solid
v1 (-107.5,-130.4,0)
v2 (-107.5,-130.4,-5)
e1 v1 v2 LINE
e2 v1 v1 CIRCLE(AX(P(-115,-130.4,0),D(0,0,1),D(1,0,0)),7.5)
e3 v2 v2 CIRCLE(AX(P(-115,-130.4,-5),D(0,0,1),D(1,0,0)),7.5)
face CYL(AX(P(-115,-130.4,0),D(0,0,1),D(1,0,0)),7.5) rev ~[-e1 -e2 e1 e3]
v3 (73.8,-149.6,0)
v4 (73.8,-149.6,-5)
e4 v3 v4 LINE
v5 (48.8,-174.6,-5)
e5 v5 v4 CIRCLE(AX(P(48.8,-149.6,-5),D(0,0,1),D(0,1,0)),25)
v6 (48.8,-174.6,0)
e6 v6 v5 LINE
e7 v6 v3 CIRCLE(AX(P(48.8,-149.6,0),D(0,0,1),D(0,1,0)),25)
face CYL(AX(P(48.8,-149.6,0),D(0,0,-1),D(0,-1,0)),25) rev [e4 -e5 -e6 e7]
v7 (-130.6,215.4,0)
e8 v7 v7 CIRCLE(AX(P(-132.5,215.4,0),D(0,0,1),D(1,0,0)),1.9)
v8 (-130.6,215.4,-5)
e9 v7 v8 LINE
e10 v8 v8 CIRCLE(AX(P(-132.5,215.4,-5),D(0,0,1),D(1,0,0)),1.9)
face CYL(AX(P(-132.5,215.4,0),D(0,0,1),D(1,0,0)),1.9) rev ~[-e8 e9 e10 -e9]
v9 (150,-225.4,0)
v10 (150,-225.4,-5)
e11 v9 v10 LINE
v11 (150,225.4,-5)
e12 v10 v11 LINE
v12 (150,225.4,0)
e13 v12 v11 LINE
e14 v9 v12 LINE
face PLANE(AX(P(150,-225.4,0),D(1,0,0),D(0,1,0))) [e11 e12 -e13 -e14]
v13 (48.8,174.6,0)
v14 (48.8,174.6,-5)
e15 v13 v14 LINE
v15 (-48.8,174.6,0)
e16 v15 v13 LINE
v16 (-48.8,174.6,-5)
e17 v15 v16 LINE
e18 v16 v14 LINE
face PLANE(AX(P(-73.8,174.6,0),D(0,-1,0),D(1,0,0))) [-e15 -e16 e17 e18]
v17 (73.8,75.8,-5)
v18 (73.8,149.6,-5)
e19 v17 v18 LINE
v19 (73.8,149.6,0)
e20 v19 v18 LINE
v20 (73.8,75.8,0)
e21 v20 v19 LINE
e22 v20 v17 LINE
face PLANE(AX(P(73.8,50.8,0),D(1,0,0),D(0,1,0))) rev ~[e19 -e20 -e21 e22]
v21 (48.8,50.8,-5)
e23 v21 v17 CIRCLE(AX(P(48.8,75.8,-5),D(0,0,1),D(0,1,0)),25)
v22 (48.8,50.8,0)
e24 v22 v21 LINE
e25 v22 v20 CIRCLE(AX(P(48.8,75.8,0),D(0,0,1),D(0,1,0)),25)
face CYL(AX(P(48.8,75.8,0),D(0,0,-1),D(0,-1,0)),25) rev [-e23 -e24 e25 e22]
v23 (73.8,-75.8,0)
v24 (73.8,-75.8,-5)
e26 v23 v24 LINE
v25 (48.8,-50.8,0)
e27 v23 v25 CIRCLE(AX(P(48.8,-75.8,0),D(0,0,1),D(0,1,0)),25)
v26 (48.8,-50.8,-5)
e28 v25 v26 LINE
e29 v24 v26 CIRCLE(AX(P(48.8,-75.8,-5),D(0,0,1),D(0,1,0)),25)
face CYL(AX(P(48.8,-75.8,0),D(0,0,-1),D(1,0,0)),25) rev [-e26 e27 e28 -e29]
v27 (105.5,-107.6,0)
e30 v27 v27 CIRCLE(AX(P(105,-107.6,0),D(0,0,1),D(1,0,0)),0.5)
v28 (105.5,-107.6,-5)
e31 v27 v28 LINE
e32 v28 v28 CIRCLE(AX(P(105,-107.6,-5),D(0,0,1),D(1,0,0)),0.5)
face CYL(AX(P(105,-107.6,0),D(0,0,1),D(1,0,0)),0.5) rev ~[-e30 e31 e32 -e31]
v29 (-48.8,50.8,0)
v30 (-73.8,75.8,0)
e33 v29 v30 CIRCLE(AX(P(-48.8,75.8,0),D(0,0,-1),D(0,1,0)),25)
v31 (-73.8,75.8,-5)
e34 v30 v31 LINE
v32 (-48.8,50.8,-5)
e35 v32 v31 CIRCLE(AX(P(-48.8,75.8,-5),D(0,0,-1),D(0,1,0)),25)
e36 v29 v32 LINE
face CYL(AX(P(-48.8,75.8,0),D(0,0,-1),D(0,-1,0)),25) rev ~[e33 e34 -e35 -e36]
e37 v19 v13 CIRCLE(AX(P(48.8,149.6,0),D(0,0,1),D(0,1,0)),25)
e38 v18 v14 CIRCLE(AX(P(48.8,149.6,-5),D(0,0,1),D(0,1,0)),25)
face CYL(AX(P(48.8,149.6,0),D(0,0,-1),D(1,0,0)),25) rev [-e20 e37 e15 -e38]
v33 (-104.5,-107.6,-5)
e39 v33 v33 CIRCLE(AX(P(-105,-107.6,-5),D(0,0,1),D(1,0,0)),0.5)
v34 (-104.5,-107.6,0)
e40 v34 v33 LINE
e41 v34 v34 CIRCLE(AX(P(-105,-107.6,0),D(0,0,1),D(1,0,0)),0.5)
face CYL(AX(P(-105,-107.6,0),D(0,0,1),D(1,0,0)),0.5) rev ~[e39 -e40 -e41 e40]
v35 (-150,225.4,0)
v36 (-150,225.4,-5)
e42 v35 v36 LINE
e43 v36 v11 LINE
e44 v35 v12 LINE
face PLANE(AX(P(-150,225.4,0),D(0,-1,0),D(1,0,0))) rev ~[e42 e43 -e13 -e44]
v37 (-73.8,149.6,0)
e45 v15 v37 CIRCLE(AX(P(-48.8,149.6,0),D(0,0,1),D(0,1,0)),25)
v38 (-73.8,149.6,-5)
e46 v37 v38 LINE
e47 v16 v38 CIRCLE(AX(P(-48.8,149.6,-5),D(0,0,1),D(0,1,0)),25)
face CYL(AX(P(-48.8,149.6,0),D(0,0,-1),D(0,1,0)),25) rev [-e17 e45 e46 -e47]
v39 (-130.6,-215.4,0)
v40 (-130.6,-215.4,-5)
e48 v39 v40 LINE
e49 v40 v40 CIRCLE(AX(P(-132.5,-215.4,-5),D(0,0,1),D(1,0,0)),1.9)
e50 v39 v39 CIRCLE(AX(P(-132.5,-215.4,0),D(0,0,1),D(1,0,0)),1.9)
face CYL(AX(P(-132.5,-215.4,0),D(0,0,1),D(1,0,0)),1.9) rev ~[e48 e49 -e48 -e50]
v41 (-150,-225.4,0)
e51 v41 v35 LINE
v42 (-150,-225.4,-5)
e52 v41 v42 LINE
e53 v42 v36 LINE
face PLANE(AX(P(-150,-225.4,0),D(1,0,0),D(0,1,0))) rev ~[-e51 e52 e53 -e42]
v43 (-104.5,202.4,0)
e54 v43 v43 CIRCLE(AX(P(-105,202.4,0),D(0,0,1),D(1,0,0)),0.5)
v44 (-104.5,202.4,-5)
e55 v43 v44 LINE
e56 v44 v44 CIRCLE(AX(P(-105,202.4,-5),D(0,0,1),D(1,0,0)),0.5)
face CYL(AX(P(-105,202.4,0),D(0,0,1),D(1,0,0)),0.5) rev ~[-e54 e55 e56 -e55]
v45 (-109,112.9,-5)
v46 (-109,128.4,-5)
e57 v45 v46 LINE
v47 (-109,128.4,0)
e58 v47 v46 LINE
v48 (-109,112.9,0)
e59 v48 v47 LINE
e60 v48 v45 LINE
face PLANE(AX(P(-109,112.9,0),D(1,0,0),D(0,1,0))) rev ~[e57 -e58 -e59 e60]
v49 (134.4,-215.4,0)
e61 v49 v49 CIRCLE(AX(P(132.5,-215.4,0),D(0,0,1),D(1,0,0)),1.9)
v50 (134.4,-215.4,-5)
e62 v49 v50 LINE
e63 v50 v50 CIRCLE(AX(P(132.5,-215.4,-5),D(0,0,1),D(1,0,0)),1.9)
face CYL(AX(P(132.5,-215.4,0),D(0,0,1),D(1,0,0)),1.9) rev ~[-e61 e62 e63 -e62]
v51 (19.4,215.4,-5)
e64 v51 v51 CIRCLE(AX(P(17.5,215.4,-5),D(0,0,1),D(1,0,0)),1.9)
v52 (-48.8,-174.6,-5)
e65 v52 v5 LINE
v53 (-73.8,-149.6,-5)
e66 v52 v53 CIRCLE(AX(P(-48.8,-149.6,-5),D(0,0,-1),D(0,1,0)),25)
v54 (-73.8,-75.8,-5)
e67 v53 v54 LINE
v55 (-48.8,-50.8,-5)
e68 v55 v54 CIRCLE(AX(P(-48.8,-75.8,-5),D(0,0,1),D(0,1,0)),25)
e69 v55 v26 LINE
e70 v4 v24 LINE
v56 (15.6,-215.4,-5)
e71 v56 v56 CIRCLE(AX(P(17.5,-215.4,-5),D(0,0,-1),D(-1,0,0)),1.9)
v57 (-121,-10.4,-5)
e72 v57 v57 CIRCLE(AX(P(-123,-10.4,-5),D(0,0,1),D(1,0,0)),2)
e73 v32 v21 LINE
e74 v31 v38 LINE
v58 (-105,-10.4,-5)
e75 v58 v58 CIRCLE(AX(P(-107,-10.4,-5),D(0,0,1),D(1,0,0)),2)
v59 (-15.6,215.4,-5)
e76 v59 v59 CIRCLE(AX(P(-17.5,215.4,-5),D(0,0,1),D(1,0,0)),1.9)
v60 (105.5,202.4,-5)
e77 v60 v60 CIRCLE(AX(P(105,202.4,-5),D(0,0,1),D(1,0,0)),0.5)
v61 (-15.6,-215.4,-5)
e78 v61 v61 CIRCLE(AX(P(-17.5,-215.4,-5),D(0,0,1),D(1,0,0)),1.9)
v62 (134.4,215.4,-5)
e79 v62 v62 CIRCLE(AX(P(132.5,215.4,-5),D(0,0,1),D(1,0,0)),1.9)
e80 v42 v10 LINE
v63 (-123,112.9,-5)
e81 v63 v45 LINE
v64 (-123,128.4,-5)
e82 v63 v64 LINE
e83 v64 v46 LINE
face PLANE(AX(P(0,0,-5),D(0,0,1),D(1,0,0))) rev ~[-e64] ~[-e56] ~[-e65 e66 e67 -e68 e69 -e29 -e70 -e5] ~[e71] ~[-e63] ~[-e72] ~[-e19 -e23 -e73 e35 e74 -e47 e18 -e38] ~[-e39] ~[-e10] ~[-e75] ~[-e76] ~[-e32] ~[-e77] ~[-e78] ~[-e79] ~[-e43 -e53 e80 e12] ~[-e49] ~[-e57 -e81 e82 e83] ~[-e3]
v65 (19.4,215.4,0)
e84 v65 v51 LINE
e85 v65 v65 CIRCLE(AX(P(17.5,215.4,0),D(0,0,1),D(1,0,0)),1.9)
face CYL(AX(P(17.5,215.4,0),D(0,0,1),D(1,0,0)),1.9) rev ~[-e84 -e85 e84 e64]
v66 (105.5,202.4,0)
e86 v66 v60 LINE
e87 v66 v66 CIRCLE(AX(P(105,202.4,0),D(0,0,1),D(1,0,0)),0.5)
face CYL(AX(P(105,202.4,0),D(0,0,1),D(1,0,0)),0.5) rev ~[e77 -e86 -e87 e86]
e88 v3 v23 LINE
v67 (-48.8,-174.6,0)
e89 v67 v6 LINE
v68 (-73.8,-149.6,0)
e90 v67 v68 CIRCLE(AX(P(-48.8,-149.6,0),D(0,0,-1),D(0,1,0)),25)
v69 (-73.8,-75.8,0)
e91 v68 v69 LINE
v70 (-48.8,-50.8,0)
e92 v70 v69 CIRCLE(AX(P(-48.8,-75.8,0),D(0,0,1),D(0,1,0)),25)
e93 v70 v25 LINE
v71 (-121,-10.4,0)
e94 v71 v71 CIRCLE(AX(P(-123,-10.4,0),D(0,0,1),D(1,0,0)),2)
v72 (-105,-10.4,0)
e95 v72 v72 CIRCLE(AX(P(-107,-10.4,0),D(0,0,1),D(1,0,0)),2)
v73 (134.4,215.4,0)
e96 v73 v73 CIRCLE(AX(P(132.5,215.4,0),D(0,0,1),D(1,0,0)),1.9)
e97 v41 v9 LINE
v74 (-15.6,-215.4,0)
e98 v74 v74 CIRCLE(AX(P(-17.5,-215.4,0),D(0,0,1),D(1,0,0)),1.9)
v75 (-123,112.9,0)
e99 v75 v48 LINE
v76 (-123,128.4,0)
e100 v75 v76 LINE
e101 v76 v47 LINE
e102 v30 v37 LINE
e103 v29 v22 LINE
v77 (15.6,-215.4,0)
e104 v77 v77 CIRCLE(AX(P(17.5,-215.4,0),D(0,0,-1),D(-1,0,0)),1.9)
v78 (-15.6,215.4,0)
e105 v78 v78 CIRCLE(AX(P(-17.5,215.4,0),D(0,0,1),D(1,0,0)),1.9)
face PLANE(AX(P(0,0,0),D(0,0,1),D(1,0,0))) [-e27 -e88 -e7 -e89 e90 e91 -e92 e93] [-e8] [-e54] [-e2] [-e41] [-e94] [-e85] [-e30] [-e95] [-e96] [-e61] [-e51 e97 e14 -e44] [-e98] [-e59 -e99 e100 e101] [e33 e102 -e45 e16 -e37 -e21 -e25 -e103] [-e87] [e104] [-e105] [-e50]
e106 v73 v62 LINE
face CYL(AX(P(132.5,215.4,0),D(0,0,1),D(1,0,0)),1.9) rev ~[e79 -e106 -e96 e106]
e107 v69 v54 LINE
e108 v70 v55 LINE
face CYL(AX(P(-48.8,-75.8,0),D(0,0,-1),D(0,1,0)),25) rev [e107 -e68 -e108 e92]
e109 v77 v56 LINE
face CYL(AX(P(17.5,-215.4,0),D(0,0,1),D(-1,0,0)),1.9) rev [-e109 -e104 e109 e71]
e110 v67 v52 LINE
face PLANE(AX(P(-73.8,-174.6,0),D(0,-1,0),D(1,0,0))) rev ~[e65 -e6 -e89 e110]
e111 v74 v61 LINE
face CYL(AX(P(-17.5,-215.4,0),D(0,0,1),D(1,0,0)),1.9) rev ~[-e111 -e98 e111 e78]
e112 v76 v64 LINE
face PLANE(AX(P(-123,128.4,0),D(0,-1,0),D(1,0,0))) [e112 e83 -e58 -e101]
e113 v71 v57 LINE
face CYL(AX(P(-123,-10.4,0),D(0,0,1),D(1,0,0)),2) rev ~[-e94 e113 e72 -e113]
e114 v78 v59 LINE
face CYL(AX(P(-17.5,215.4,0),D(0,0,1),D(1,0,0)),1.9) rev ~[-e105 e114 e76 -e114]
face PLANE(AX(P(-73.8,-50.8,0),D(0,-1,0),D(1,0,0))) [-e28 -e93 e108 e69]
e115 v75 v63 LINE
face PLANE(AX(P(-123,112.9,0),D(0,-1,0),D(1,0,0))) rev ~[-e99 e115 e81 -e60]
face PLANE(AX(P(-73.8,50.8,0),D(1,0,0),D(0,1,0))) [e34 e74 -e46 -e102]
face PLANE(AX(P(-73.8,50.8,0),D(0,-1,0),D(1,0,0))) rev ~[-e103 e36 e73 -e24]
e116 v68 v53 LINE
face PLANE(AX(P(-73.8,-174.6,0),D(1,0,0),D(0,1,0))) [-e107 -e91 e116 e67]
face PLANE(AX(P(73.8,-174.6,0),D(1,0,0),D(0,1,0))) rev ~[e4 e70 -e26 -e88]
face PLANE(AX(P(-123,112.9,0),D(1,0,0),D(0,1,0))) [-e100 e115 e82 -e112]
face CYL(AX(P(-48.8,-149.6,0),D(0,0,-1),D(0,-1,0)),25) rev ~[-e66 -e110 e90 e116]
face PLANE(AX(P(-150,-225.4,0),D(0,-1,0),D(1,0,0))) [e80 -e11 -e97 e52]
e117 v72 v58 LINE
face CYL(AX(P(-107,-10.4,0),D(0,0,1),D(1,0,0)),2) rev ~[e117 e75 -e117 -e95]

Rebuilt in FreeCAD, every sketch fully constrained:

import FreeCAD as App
import Part
import Sketcher
from FreeCAD import Vector
Q = App.Units.Quantity


def edges_at(feature, points):
    """Names of the edges that pass closest to the given points."""
    edges = feature.Shape.Edges
    near = lambda p: min(range(len(edges)), key=lambda i: edges[i].distToShape(Part.Vertex(*p))[0])
    return sorted({f"Edge{near(p) + 1}" for p in points})

doc = App.newDocument("Part")
body = doc.addObject("PartDesign::Body", "Body")

sketch1 = body.newObject("Sketcher::SketchObject", "Sketch")
sketch1.AttachmentSupport = (doc.getObject("XY_Plane"), [""])
sketch1.MapMode = "FlatFace"
sketch1.addGeometry(Part.LineSegment(Vector(-150, 225.4, 0), Vector(-150, -225.4, 0)), False)
sketch1.addGeometry(Part.LineSegment(Vector(-150, -225.4, 0), Vector(150, -225.4, 0)), False)
sketch1.addGeometry(Part.LineSegment(Vector(150, -225.4, 0), Vector(150, 225.4, 0)), False)
sketch1.addGeometry(Part.LineSegment(Vector(150, 225.4, 0), Vector(-150, 225.4, 0)), False)
sketch1.addGeometry(Part.Circle(Vector(-132.5, -215.4, 0), Vector(0, 0, 1), 1.9), False)
sketch1.addGeometry(Part.Circle(Vector(-17.5, -215.4, 0), Vector(0, 0, 1), 1.9), False)
sketch1.addGeometry(Part.Circle(Vector(17.5, -215.4, 0), Vector(0, 0, 1), 1.9), False)
sketch1.addGeometry(Part.Circle(Vector(132.5, -215.4, 0), Vector(0, 0, 1), 1.9), False)
sketch1.addGeometry(Part.Circle(Vector(-132.5, 215.4, 0), Vector(0, 0, 1), 1.9), False)
sketch1.addGeometry(Part.Circle(Vector(-17.5, 215.4, 0), Vector(0, 0, 1), 1.9), False)
sketch1.addGeometry(Part.Circle(Vector(17.5, 215.4, 0), Vector(0, 0, 1), 1.9), False)
sketch1.addGeometry(Part.Circle(Vector(132.5, 215.4, 0), Vector(0, 0, 1), 1.9), False)
sketch1.addConstraint(Sketcher.Constraint("Coincident", 0, 2, 1, 1))
sketch1.addConstraint(Sketcher.Constraint("Coincident", 1, 2, 2, 1))
sketch1.addConstraint(Sketcher.Constraint("Coincident", 2, 2, 3, 1))
sketch1.addConstraint(Sketcher.Constraint("Coincident", 3, 2, 0, 1))
sketch1.addConstraint(Sketcher.Constraint("Vertical", 0))
sketch1.addConstraint(Sketcher.Constraint("Horizontal", 1))
sketch1.addConstraint(Sketcher.Constraint("Vertical", 2))
sketch1.addConstraint(Sketcher.Constraint("Horizontal", 3))
sketch1.addConstraint(Sketcher.Constraint("Equal", 4, 5))
sketch1.addConstraint(Sketcher.Constraint("Equal", 5, 6))
sketch1.addConstraint(Sketcher.Constraint("Equal", 6, 7))
sketch1.addConstraint(Sketcher.Constraint("Equal", 7, 8))
sketch1.addConstraint(Sketcher.Constraint("Equal", 8, 9))
sketch1.addConstraint(Sketcher.Constraint("Equal", 9, 10))
sketch1.addConstraint(Sketcher.Constraint("Equal", 10, 11))
sketch1.addConstraint(Sketcher.Constraint("Symmetric", 7, 3, 8, 3, -1, 1))
sketch1.addConstraint(Sketcher.Constraint("Symmetric", 6, 3, 9, 3, -1, 1))
sketch1.addConstraint(Sketcher.Constraint("Symmetric", 5, 3, 10, 3, -1, 1))
sketch1.addConstraint(Sketcher.Constraint("Symmetric", 4, 3, 11, 3, -1, 1))
sketch1.addConstraint(Sketcher.Constraint("Symmetric", 0, 2, 2, 2, -1, 1))
sketch1.addConstraint(Sketcher.Constraint("Symmetric", 5, 3, 6, 3, -2))
sketch1.addConstraint(Sketcher.Constraint("Symmetric", 4, 3, 7, 3, -2))
sketch1.addConstraint(Sketcher.Constraint("Horizontal", 4, 3, 5, 3))
sketch1.addConstraint(Sketcher.Constraint("Diameter", 4, Q("3.8 mm")))
sketch1.addConstraint(Sketcher.Constraint("DistanceX", 1, 1, 1, 2, Q("300 mm")))
sketch1.addConstraint(Sketcher.Constraint("DistanceY", 0, 2, 0, 1, Q("450.8 mm")))
sketch1.addConstraint(Sketcher.Constraint("DistanceX", 4, 3, 5, 3, Q("115 mm")))
sketch1.addConstraint(Sketcher.Constraint("DistanceX", 5, 3, 6, 3, Q("35 mm")))
sketch1.addConstraint(Sketcher.Constraint("DistanceY", 0, 2, 4, 3, Q("10 mm")))
pad1 = body.newObject("PartDesign::Pad", "Pad")
pad1.Profile = sketch1
pad1.Length = 5
pad1.Reversed = True

sketch2 = body.newObject("Sketcher::SketchObject", "Sketch001")
sketch2.AttachmentSupport = (doc.getObject("XY_Plane"), [""])
sketch2.MapMode = "FlatFace"
sketch2.addGeometry(Part.Circle(Vector(-105, 202.4, 0), Vector(0, 0, 1), 0.5), False)
sketch2.addGeometry(Part.Circle(Vector(105, 202.4, 0), Vector(0, 0, 1), 0.5), False)
sketch2.addGeometry(Part.Circle(Vector(105, -107.6, 0), Vector(0, 0, 1), 0.5), False)
sketch2.addGeometry(Part.Circle(Vector(-105, -107.6, 0), Vector(0, 0, 1), 0.5), False)
sketch2.addConstraint(Sketcher.Constraint("Equal", 0, 1))
sketch2.addConstraint(Sketcher.Constraint("Equal", 1, 2))
sketch2.addConstraint(Sketcher.Constraint("Equal", 2, 3))
sketch2.addConstraint(Sketcher.Constraint("Symmetric", 0, 3, 1, 3, -2))
sketch2.addConstraint(Sketcher.Constraint("Symmetric", 2, 3, 3, 3, -2))
sketch2.addConstraint(Sketcher.Constraint("Vertical", 1, 3, 2, 3))
sketch2.addConstraint(Sketcher.Constraint("Diameter", 0, Q("1 mm")))
sketch2.addConstraint(Sketcher.Constraint("DistanceX", 0, 3, -1, 1, Q("105 mm")))
sketch2.addConstraint(Sketcher.Constraint("DistanceY", 2, 3, 1, 3, Q("310 mm")))
sketch2.addConstraint(Sketcher.Constraint("DistanceY", -1, 1, 0, 3, Q("202.4 mm")))
pocket1 = body.newObject("PartDesign::Pocket", "Pocket")
pocket1.Profile = sketch2
pocket1.Length = 25

sketch3 = body.newObject("Sketcher::SketchObject", "Sketch002")
sketch3.AttachmentSupport = (doc.getObject("XY_Plane"), [""])
sketch3.MapMode = "FlatFace"
sketch3.addGeometry(Part.LineSegment(Vector(-74, 175, 0), Vector(-74, 51, 0)), False)
sketch3.addGeometry(Part.LineSegment(Vector(-74, 51, 0), Vector(74, 51, 0)), False)
sketch3.addGeometry(Part.LineSegment(Vector(74, 51, 0), Vector(74, 175, 0)), False)
sketch3.addGeometry(Part.LineSegment(Vector(74, 175, 0), Vector(-74, 175, 0)), False)
sketch3.addGeometry(Part.LineSegment(Vector(-74, -51, 0), Vector(-74, -175, 0)), False)
sketch3.addGeometry(Part.LineSegment(Vector(-74, -175, 0), Vector(74, -175, 0)), False)
sketch3.addGeometry(Part.LineSegment(Vector(74, -175, 0), Vector(74, -51, 0)), False)
sketch3.addGeometry(Part.LineSegment(Vector(74, -51, 0), Vector(-74, -51, 0)), False)
sketch3.addConstraint(Sketcher.Constraint("Coincident", 0, 2, 1, 1))
sketch3.addConstraint(Sketcher.Constraint("Coincident", 1, 2, 2, 1))
sketch3.addConstraint(Sketcher.Constraint("Coincident", 2, 2, 3, 1))
sketch3.addConstraint(Sketcher.Constraint("Coincident", 3, 2, 0, 1))
sketch3.addConstraint(Sketcher.Constraint("Coincident", 4, 2, 5, 1))
sketch3.addConstraint(Sketcher.Constraint("Coincident", 5, 2, 6, 1))
sketch3.addConstraint(Sketcher.Constraint("Coincident", 6, 2, 7, 1))
sketch3.addConstraint(Sketcher.Constraint("Coincident", 7, 2, 4, 1))
sketch3.addConstraint(Sketcher.Constraint("Vertical", 0))
sketch3.addConstraint(Sketcher.Constraint("Horizontal", 1))
sketch3.addConstraint(Sketcher.Constraint("Vertical", 2))
sketch3.addConstraint(Sketcher.Constraint("Horizontal", 3))
sketch3.addConstraint(Sketcher.Constraint("Vertical", 4))
sketch3.addConstraint(Sketcher.Constraint("Horizontal", 5))
sketch3.addConstraint(Sketcher.Constraint("Vertical", 6))
sketch3.addConstraint(Sketcher.Constraint("Horizontal", 7))
sketch3.addConstraint(Sketcher.Constraint("Symmetric", 2, 2, 4, 2, -1, 1))
sketch3.addConstraint(Sketcher.Constraint("Symmetric", 0, 2, 6, 2, -1, 1))
sketch3.addConstraint(Sketcher.Constraint("Vertical", 3, 2, 4, 2))
sketch3.addConstraint(Sketcher.Constraint("DistanceX", 1, 1, 1, 2, Q("147.6 mm")))
sketch3.addConstraint(Sketcher.Constraint("DistanceY", 0, 2, 0, 1, Q("123.8 mm")))
sketch3.addConstraint(Sketcher.Constraint("DistanceY", -1, 1, 0, 2, Q("50.8 mm")))
pocket2 = body.newObject("PartDesign::Pocket", "Pocket001")
pocket2.Profile = sketch3
pocket2.Length = 25
doc.recompute()

fillet = body.newObject("PartDesign::Fillet", "Fillet")
fillet.Base = (pocket2, edges_at(pocket2, [
    (-73.8, 174.6, -2.5),
    (73.8, 174.6, -2.5),
    (-73.8, 50.8, -2.5),
    (73.8, 50.8, -2.5),
    (-73.8, -50.8, -2.5),
    (73.8, -50.8, -2.5),
    (73.8, -174.6, -2.5),
    (-73.8, -174.6, -2.5),
]))
fillet.Radius = 25

sketch4 = body.newObject("Sketcher::SketchObject", "Sketch003")
sketch4.AttachmentSupport = (doc.getObject("XY_Plane"), [""])
sketch4.MapMode = "FlatFace"
sketch4.addGeometry(Part.LineSegment(Vector(-123, 128, 0), Vector(-123, 113, 0)), False)
sketch4.addGeometry(Part.LineSegment(Vector(-123, 113, 0), Vector(-109, 113, 0)), False)
sketch4.addGeometry(Part.LineSegment(Vector(-109, 113, 0), Vector(-109, 128, 0)), False)
sketch4.addGeometry(Part.LineSegment(Vector(-109, 128, 0), Vector(-123, 128, 0)), False)
sketch4.addConstraint(Sketcher.Constraint("Coincident", 0, 2, 1, 1))
sketch4.addConstraint(Sketcher.Constraint("Coincident", 1, 2, 2, 1))
sketch4.addConstraint(Sketcher.Constraint("Coincident", 2, 2, 3, 1))
sketch4.addConstraint(Sketcher.Constraint("Coincident", 3, 2, 0, 1))
sketch4.addConstraint(Sketcher.Constraint("Vertical", 0))
sketch4.addConstraint(Sketcher.Constraint("Horizontal", 1))
sketch4.addConstraint(Sketcher.Constraint("Vertical", 2))
sketch4.addConstraint(Sketcher.Constraint("Horizontal", 3))
sketch4.addConstraint(Sketcher.Constraint("DistanceX", 1, 1, 1, 2, Q("14 mm")))
sketch4.addConstraint(Sketcher.Constraint("DistanceY", 0, 2, 0, 1, Q("15.5 mm")))
sketch4.addConstraint(Sketcher.Constraint("DistanceX", 0, 2, -1, 1, Q("123 mm")))
sketch4.addConstraint(Sketcher.Constraint("DistanceY", -1, 1, 0, 2, Q("112.9 mm")))
pocket3 = body.newObject("PartDesign::Pocket", "Pocket002")
pocket3.Profile = sketch4
pocket3.Length = 25

sketch5 = body.newObject("Sketcher::SketchObject", "Sketch004")
sketch5.AttachmentSupport = (doc.getObject("XY_Plane"), [""])
sketch5.MapMode = "FlatFace"
sketch5.addGeometry(Part.Circle(Vector(-115, -130, 0), Vector(0, 0, 1), 8), False)
sketch5.addConstraint(Sketcher.Constraint("Diameter", 0, Q("15 mm")))
sketch5.addConstraint(Sketcher.Constraint("DistanceX", 0, 3, -1, 1, Q("115 mm")))
sketch5.addConstraint(Sketcher.Constraint("DistanceY", 0, 3, -1, 1, Q("130.4 mm")))
pocket4 = body.newObject("PartDesign::Pocket", "Pocket003")
pocket4.Profile = sketch5
pocket4.Length = 25

sketch6 = body.newObject("Sketcher::SketchObject", "Sketch005")
sketch6.AttachmentSupport = (doc.getObject("XY_Plane"), [""])
sketch6.MapMode = "FlatFace"
sketch6.addGeometry(Part.Circle(Vector(-107, -10.4, 0), Vector(0, 0, 1), 2), False)
sketch6.addGeometry(Part.Circle(Vector(-123, -10.4, 0), Vector(0, 0, 1), 2), False)
sketch6.addConstraint(Sketcher.Constraint("Equal", 0, 1))
sketch6.addConstraint(Sketcher.Constraint("Horizontal", 0, 3, 1, 3))
sketch6.addConstraint(Sketcher.Constraint("Diameter", 0, Q("4 mm")))
sketch6.addConstraint(Sketcher.Constraint("DistanceX", 0, 3, -1, 1, Q("107 mm")))
sketch6.addConstraint(Sketcher.Constraint("DistanceX", 1, 3, -1, 1, Q("123 mm")))
sketch6.addConstraint(Sketcher.Constraint("DistanceY", 0, 3, -1, 1, Q("10.4 mm")))
pocket5 = body.newObject("PartDesign::Pocket", "Pocket004")
pocket5.Profile = sketch6
pocket5.Length = 25

doc.recompute()
